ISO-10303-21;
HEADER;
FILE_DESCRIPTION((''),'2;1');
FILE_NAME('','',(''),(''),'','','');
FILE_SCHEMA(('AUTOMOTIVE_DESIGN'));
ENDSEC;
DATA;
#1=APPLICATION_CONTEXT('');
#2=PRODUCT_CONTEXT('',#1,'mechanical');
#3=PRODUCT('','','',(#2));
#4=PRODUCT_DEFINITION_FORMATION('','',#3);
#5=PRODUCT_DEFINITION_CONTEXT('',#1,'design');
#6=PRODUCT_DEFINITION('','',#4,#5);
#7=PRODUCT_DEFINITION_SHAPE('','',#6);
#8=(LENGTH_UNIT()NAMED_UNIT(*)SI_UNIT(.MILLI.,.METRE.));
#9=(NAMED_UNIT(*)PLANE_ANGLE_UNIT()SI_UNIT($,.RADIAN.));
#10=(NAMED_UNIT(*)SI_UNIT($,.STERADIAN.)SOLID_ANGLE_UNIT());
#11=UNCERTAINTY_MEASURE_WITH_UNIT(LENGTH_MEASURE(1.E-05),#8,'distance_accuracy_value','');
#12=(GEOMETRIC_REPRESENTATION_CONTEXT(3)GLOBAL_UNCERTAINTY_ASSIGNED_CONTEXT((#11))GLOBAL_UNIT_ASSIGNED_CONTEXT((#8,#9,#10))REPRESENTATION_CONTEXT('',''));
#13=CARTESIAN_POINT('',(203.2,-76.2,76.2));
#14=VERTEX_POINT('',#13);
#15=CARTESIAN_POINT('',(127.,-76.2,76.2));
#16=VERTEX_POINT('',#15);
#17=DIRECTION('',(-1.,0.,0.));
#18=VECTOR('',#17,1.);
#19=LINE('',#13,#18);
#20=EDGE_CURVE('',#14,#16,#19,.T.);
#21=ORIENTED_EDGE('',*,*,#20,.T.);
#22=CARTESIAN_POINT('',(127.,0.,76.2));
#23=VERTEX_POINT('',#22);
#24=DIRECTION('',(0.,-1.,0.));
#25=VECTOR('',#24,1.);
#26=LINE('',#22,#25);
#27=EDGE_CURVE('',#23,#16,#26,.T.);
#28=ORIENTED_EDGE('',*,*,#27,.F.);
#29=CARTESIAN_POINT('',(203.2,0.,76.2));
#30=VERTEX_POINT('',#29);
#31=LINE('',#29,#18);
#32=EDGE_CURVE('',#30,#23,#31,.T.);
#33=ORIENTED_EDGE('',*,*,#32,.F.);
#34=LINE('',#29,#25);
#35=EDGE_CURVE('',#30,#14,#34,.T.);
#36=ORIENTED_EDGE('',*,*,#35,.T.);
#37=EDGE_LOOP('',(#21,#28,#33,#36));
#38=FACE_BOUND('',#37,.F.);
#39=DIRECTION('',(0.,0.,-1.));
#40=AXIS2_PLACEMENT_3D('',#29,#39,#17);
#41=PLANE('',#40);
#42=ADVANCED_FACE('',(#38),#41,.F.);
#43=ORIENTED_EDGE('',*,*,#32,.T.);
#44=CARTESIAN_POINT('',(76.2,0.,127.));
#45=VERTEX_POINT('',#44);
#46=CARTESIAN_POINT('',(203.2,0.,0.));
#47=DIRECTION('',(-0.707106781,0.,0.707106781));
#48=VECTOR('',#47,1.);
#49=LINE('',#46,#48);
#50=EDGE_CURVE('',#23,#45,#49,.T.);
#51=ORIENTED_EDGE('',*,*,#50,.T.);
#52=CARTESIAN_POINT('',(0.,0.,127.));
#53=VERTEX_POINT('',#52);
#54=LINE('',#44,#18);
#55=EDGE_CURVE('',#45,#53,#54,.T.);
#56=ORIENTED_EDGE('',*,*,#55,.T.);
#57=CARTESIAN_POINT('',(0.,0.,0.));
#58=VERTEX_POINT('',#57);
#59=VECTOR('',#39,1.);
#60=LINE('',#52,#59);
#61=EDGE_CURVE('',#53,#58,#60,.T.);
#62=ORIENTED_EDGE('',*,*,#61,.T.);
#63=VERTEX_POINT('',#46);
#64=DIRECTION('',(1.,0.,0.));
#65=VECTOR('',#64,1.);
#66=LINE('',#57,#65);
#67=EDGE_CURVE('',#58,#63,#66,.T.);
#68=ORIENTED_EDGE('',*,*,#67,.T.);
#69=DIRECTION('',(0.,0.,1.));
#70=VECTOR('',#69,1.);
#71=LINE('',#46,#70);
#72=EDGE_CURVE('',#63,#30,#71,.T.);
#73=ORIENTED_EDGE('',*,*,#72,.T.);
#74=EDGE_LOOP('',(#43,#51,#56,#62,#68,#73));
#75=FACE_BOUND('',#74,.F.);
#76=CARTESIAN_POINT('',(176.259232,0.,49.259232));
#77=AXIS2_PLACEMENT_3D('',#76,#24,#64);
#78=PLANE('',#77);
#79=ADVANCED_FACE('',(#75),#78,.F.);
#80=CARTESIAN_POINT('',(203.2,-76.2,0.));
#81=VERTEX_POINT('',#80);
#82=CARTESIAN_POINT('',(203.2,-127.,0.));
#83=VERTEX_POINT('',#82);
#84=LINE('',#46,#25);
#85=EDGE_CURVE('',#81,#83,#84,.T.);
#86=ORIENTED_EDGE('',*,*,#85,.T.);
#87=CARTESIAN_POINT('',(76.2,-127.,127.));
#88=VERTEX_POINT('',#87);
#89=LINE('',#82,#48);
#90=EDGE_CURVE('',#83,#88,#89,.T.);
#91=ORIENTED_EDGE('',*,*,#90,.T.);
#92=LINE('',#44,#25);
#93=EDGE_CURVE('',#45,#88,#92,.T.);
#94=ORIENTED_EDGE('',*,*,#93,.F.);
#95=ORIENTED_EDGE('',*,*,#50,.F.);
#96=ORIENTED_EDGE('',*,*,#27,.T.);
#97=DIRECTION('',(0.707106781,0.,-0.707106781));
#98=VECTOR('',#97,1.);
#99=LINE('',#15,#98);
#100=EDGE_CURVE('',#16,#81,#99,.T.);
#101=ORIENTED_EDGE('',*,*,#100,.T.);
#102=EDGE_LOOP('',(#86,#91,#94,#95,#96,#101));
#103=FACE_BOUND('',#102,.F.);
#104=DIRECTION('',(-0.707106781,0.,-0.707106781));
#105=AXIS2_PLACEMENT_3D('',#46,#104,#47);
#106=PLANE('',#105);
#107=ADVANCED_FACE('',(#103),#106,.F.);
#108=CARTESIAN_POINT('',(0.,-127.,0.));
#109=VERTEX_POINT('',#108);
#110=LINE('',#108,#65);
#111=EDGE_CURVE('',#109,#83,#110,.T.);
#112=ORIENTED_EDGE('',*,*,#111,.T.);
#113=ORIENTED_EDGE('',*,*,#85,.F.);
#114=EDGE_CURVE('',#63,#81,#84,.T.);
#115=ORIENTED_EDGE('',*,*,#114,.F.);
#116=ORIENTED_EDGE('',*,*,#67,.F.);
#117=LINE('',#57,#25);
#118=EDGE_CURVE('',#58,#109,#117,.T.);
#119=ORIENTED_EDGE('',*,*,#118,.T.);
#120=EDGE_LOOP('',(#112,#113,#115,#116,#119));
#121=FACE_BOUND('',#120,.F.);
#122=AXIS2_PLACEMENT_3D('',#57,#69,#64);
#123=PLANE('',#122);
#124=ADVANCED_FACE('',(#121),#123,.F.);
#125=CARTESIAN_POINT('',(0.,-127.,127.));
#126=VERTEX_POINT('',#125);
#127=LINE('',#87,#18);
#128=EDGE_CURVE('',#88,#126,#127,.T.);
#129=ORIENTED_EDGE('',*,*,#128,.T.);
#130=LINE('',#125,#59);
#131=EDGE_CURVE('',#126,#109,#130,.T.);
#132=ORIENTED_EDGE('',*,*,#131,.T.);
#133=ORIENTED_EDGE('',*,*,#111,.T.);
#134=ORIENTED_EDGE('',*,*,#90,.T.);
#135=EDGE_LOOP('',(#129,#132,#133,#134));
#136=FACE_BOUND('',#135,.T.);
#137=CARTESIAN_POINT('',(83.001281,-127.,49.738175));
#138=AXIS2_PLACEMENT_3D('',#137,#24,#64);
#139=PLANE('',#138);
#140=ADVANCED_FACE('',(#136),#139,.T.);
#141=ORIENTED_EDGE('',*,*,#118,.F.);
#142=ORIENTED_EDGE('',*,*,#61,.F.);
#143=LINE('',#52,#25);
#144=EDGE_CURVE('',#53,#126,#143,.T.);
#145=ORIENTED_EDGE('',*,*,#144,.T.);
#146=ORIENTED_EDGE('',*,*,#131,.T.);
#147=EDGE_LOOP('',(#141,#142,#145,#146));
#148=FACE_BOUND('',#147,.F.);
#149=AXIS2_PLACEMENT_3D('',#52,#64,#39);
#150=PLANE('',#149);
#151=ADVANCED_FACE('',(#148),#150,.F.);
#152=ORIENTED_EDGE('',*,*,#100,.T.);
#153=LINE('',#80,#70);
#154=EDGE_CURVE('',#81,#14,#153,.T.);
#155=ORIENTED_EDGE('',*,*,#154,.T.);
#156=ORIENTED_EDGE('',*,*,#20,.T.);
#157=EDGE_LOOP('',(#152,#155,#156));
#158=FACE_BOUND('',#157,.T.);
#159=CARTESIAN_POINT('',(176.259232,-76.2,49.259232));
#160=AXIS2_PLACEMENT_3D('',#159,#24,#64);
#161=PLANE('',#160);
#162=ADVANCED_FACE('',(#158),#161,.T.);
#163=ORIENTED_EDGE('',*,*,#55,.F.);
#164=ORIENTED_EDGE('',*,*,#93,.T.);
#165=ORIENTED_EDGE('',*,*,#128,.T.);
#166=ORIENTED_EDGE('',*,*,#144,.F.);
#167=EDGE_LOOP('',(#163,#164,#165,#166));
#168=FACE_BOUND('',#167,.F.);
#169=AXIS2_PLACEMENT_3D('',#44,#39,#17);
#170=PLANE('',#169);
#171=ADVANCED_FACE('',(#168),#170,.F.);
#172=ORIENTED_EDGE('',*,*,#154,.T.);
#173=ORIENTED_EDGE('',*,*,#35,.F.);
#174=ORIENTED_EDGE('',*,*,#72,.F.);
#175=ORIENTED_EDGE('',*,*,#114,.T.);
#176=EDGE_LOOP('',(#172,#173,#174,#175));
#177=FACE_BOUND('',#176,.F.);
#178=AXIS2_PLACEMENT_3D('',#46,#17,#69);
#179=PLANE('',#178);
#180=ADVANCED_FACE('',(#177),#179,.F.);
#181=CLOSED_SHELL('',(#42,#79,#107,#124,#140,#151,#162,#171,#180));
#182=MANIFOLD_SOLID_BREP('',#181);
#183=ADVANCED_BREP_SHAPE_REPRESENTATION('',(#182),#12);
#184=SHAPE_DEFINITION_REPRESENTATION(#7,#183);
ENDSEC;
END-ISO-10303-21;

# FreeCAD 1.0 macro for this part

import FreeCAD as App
import Part
import Sketcher

V = App.Vector
Q = App.Units.Quantity

doc = App.newDocument("Part")
body = doc.addObject("PartDesign::Body", "Body")

sketch1 = body.newObject("Sketcher::SketchObject", "Sketch")
sketch1.AttachmentSupport = (doc.getObject("XZ_Plane"), [""])
sketch1.MapMode = "FlatFace"
sketch1.addGeometry(Part.LineSegment(V(0, 127, 0), V(0, 0, 0)), False)
sketch1.addGeometry(Part.LineSegment(V(0, 0, 0), V(203, 0, 0)), False)
sketch1.addGeometry(Part.LineSegment(V(203, 0, 0), V(76, 127, 0)), False)
sketch1.addGeometry(Part.LineSegment(V(76, 127, 0), V(0, 127, 0)), False)
sketch1.addConstraint(Sketcher.Constraint("Coincident", 0, 2, 1, 1))
sketch1.addConstraint(Sketcher.Constraint("Coincident", 1, 2, 2, 1))
sketch1.addConstraint(Sketcher.Constraint("Coincident", 2, 2, 3, 1))
sketch1.addConstraint(Sketcher.Constraint("Coincident", 3, 2, 0, 1))
sketch1.addConstraint(Sketcher.Constraint("Vertical", 0))
sketch1.addConstraint(Sketcher.Constraint("Horizontal", 1))
sketch1.addConstraint(Sketcher.Constraint("Horizontal", 3))
sketch1.addConstraint(Sketcher.Constraint("Coincident", 0, 2, -1, 1))
sketch1.addConstraint(Sketcher.Constraint("DistanceX", 1, 1, 1, 2, Q("8 in")))
sketch1.addConstraint(Sketcher.Constraint("DistanceX", 3, 2, 3, 1, Q("3 in")))
sketch1.addConstraint(Sketcher.Constraint("DistanceY", 0, 2, 0, 1, Q("5 in")))
pad1 = body.newObject("PartDesign::Pad", "Pad")
pad1.Profile = sketch1
pad1.Length = Q("5 in")

sketch2 = body.newObject("Sketcher::SketchObject", "Sketch001")
sketch2.AttachmentSupport = (doc.getObject("XZ_Plane"), [""])
sketch2.MapMode = "FlatFace"
sketch2.addGeometry(Part.LineSegment(V(127, 76, 0), V(203, 0, 0)), False)
sketch2.addGeometry(Part.LineSegment(V(203, 0, 0), V(203, 76, 0)), False)
sketch2.addGeometry(Part.LineSegment(V(203, 76, 0), V(127, 76, 0)), False)
sketch2.addConstraint(Sketcher.Constraint("Coincident", 0, 2, 1, 1))
sketch2.addConstraint(Sketcher.Constraint("Coincident", 1, 2, 2, 1))
sketch2.addConstraint(Sketcher.Constraint("Coincident", 2, 2, 0, 1))
sketch2.addConstraint(Sketcher.Constraint("Vertical", 1))
sketch2.addConstraint(Sketcher.Constraint("Horizontal", 2))
sketch2.addConstraint(Sketcher.Constraint("PointOnObject", 0, 2, -1))
sketch2.addConstraint(Sketcher.Constraint("Equal", 2, 1))
sketch2.addConstraint(Sketcher.Constraint("DistanceX", 2, 2, 2, 1, Q("3 in")))
sketch2.addConstraint(Sketcher.Constraint("DistanceX", -1, 1, 0, 2, Q("8 in")))
pad2 = body.newObject("PartDesign::Pad", "Pad001")
pad2.Profile = sketch2
pad2.Length = Q("3 in")

doc.recompute()
